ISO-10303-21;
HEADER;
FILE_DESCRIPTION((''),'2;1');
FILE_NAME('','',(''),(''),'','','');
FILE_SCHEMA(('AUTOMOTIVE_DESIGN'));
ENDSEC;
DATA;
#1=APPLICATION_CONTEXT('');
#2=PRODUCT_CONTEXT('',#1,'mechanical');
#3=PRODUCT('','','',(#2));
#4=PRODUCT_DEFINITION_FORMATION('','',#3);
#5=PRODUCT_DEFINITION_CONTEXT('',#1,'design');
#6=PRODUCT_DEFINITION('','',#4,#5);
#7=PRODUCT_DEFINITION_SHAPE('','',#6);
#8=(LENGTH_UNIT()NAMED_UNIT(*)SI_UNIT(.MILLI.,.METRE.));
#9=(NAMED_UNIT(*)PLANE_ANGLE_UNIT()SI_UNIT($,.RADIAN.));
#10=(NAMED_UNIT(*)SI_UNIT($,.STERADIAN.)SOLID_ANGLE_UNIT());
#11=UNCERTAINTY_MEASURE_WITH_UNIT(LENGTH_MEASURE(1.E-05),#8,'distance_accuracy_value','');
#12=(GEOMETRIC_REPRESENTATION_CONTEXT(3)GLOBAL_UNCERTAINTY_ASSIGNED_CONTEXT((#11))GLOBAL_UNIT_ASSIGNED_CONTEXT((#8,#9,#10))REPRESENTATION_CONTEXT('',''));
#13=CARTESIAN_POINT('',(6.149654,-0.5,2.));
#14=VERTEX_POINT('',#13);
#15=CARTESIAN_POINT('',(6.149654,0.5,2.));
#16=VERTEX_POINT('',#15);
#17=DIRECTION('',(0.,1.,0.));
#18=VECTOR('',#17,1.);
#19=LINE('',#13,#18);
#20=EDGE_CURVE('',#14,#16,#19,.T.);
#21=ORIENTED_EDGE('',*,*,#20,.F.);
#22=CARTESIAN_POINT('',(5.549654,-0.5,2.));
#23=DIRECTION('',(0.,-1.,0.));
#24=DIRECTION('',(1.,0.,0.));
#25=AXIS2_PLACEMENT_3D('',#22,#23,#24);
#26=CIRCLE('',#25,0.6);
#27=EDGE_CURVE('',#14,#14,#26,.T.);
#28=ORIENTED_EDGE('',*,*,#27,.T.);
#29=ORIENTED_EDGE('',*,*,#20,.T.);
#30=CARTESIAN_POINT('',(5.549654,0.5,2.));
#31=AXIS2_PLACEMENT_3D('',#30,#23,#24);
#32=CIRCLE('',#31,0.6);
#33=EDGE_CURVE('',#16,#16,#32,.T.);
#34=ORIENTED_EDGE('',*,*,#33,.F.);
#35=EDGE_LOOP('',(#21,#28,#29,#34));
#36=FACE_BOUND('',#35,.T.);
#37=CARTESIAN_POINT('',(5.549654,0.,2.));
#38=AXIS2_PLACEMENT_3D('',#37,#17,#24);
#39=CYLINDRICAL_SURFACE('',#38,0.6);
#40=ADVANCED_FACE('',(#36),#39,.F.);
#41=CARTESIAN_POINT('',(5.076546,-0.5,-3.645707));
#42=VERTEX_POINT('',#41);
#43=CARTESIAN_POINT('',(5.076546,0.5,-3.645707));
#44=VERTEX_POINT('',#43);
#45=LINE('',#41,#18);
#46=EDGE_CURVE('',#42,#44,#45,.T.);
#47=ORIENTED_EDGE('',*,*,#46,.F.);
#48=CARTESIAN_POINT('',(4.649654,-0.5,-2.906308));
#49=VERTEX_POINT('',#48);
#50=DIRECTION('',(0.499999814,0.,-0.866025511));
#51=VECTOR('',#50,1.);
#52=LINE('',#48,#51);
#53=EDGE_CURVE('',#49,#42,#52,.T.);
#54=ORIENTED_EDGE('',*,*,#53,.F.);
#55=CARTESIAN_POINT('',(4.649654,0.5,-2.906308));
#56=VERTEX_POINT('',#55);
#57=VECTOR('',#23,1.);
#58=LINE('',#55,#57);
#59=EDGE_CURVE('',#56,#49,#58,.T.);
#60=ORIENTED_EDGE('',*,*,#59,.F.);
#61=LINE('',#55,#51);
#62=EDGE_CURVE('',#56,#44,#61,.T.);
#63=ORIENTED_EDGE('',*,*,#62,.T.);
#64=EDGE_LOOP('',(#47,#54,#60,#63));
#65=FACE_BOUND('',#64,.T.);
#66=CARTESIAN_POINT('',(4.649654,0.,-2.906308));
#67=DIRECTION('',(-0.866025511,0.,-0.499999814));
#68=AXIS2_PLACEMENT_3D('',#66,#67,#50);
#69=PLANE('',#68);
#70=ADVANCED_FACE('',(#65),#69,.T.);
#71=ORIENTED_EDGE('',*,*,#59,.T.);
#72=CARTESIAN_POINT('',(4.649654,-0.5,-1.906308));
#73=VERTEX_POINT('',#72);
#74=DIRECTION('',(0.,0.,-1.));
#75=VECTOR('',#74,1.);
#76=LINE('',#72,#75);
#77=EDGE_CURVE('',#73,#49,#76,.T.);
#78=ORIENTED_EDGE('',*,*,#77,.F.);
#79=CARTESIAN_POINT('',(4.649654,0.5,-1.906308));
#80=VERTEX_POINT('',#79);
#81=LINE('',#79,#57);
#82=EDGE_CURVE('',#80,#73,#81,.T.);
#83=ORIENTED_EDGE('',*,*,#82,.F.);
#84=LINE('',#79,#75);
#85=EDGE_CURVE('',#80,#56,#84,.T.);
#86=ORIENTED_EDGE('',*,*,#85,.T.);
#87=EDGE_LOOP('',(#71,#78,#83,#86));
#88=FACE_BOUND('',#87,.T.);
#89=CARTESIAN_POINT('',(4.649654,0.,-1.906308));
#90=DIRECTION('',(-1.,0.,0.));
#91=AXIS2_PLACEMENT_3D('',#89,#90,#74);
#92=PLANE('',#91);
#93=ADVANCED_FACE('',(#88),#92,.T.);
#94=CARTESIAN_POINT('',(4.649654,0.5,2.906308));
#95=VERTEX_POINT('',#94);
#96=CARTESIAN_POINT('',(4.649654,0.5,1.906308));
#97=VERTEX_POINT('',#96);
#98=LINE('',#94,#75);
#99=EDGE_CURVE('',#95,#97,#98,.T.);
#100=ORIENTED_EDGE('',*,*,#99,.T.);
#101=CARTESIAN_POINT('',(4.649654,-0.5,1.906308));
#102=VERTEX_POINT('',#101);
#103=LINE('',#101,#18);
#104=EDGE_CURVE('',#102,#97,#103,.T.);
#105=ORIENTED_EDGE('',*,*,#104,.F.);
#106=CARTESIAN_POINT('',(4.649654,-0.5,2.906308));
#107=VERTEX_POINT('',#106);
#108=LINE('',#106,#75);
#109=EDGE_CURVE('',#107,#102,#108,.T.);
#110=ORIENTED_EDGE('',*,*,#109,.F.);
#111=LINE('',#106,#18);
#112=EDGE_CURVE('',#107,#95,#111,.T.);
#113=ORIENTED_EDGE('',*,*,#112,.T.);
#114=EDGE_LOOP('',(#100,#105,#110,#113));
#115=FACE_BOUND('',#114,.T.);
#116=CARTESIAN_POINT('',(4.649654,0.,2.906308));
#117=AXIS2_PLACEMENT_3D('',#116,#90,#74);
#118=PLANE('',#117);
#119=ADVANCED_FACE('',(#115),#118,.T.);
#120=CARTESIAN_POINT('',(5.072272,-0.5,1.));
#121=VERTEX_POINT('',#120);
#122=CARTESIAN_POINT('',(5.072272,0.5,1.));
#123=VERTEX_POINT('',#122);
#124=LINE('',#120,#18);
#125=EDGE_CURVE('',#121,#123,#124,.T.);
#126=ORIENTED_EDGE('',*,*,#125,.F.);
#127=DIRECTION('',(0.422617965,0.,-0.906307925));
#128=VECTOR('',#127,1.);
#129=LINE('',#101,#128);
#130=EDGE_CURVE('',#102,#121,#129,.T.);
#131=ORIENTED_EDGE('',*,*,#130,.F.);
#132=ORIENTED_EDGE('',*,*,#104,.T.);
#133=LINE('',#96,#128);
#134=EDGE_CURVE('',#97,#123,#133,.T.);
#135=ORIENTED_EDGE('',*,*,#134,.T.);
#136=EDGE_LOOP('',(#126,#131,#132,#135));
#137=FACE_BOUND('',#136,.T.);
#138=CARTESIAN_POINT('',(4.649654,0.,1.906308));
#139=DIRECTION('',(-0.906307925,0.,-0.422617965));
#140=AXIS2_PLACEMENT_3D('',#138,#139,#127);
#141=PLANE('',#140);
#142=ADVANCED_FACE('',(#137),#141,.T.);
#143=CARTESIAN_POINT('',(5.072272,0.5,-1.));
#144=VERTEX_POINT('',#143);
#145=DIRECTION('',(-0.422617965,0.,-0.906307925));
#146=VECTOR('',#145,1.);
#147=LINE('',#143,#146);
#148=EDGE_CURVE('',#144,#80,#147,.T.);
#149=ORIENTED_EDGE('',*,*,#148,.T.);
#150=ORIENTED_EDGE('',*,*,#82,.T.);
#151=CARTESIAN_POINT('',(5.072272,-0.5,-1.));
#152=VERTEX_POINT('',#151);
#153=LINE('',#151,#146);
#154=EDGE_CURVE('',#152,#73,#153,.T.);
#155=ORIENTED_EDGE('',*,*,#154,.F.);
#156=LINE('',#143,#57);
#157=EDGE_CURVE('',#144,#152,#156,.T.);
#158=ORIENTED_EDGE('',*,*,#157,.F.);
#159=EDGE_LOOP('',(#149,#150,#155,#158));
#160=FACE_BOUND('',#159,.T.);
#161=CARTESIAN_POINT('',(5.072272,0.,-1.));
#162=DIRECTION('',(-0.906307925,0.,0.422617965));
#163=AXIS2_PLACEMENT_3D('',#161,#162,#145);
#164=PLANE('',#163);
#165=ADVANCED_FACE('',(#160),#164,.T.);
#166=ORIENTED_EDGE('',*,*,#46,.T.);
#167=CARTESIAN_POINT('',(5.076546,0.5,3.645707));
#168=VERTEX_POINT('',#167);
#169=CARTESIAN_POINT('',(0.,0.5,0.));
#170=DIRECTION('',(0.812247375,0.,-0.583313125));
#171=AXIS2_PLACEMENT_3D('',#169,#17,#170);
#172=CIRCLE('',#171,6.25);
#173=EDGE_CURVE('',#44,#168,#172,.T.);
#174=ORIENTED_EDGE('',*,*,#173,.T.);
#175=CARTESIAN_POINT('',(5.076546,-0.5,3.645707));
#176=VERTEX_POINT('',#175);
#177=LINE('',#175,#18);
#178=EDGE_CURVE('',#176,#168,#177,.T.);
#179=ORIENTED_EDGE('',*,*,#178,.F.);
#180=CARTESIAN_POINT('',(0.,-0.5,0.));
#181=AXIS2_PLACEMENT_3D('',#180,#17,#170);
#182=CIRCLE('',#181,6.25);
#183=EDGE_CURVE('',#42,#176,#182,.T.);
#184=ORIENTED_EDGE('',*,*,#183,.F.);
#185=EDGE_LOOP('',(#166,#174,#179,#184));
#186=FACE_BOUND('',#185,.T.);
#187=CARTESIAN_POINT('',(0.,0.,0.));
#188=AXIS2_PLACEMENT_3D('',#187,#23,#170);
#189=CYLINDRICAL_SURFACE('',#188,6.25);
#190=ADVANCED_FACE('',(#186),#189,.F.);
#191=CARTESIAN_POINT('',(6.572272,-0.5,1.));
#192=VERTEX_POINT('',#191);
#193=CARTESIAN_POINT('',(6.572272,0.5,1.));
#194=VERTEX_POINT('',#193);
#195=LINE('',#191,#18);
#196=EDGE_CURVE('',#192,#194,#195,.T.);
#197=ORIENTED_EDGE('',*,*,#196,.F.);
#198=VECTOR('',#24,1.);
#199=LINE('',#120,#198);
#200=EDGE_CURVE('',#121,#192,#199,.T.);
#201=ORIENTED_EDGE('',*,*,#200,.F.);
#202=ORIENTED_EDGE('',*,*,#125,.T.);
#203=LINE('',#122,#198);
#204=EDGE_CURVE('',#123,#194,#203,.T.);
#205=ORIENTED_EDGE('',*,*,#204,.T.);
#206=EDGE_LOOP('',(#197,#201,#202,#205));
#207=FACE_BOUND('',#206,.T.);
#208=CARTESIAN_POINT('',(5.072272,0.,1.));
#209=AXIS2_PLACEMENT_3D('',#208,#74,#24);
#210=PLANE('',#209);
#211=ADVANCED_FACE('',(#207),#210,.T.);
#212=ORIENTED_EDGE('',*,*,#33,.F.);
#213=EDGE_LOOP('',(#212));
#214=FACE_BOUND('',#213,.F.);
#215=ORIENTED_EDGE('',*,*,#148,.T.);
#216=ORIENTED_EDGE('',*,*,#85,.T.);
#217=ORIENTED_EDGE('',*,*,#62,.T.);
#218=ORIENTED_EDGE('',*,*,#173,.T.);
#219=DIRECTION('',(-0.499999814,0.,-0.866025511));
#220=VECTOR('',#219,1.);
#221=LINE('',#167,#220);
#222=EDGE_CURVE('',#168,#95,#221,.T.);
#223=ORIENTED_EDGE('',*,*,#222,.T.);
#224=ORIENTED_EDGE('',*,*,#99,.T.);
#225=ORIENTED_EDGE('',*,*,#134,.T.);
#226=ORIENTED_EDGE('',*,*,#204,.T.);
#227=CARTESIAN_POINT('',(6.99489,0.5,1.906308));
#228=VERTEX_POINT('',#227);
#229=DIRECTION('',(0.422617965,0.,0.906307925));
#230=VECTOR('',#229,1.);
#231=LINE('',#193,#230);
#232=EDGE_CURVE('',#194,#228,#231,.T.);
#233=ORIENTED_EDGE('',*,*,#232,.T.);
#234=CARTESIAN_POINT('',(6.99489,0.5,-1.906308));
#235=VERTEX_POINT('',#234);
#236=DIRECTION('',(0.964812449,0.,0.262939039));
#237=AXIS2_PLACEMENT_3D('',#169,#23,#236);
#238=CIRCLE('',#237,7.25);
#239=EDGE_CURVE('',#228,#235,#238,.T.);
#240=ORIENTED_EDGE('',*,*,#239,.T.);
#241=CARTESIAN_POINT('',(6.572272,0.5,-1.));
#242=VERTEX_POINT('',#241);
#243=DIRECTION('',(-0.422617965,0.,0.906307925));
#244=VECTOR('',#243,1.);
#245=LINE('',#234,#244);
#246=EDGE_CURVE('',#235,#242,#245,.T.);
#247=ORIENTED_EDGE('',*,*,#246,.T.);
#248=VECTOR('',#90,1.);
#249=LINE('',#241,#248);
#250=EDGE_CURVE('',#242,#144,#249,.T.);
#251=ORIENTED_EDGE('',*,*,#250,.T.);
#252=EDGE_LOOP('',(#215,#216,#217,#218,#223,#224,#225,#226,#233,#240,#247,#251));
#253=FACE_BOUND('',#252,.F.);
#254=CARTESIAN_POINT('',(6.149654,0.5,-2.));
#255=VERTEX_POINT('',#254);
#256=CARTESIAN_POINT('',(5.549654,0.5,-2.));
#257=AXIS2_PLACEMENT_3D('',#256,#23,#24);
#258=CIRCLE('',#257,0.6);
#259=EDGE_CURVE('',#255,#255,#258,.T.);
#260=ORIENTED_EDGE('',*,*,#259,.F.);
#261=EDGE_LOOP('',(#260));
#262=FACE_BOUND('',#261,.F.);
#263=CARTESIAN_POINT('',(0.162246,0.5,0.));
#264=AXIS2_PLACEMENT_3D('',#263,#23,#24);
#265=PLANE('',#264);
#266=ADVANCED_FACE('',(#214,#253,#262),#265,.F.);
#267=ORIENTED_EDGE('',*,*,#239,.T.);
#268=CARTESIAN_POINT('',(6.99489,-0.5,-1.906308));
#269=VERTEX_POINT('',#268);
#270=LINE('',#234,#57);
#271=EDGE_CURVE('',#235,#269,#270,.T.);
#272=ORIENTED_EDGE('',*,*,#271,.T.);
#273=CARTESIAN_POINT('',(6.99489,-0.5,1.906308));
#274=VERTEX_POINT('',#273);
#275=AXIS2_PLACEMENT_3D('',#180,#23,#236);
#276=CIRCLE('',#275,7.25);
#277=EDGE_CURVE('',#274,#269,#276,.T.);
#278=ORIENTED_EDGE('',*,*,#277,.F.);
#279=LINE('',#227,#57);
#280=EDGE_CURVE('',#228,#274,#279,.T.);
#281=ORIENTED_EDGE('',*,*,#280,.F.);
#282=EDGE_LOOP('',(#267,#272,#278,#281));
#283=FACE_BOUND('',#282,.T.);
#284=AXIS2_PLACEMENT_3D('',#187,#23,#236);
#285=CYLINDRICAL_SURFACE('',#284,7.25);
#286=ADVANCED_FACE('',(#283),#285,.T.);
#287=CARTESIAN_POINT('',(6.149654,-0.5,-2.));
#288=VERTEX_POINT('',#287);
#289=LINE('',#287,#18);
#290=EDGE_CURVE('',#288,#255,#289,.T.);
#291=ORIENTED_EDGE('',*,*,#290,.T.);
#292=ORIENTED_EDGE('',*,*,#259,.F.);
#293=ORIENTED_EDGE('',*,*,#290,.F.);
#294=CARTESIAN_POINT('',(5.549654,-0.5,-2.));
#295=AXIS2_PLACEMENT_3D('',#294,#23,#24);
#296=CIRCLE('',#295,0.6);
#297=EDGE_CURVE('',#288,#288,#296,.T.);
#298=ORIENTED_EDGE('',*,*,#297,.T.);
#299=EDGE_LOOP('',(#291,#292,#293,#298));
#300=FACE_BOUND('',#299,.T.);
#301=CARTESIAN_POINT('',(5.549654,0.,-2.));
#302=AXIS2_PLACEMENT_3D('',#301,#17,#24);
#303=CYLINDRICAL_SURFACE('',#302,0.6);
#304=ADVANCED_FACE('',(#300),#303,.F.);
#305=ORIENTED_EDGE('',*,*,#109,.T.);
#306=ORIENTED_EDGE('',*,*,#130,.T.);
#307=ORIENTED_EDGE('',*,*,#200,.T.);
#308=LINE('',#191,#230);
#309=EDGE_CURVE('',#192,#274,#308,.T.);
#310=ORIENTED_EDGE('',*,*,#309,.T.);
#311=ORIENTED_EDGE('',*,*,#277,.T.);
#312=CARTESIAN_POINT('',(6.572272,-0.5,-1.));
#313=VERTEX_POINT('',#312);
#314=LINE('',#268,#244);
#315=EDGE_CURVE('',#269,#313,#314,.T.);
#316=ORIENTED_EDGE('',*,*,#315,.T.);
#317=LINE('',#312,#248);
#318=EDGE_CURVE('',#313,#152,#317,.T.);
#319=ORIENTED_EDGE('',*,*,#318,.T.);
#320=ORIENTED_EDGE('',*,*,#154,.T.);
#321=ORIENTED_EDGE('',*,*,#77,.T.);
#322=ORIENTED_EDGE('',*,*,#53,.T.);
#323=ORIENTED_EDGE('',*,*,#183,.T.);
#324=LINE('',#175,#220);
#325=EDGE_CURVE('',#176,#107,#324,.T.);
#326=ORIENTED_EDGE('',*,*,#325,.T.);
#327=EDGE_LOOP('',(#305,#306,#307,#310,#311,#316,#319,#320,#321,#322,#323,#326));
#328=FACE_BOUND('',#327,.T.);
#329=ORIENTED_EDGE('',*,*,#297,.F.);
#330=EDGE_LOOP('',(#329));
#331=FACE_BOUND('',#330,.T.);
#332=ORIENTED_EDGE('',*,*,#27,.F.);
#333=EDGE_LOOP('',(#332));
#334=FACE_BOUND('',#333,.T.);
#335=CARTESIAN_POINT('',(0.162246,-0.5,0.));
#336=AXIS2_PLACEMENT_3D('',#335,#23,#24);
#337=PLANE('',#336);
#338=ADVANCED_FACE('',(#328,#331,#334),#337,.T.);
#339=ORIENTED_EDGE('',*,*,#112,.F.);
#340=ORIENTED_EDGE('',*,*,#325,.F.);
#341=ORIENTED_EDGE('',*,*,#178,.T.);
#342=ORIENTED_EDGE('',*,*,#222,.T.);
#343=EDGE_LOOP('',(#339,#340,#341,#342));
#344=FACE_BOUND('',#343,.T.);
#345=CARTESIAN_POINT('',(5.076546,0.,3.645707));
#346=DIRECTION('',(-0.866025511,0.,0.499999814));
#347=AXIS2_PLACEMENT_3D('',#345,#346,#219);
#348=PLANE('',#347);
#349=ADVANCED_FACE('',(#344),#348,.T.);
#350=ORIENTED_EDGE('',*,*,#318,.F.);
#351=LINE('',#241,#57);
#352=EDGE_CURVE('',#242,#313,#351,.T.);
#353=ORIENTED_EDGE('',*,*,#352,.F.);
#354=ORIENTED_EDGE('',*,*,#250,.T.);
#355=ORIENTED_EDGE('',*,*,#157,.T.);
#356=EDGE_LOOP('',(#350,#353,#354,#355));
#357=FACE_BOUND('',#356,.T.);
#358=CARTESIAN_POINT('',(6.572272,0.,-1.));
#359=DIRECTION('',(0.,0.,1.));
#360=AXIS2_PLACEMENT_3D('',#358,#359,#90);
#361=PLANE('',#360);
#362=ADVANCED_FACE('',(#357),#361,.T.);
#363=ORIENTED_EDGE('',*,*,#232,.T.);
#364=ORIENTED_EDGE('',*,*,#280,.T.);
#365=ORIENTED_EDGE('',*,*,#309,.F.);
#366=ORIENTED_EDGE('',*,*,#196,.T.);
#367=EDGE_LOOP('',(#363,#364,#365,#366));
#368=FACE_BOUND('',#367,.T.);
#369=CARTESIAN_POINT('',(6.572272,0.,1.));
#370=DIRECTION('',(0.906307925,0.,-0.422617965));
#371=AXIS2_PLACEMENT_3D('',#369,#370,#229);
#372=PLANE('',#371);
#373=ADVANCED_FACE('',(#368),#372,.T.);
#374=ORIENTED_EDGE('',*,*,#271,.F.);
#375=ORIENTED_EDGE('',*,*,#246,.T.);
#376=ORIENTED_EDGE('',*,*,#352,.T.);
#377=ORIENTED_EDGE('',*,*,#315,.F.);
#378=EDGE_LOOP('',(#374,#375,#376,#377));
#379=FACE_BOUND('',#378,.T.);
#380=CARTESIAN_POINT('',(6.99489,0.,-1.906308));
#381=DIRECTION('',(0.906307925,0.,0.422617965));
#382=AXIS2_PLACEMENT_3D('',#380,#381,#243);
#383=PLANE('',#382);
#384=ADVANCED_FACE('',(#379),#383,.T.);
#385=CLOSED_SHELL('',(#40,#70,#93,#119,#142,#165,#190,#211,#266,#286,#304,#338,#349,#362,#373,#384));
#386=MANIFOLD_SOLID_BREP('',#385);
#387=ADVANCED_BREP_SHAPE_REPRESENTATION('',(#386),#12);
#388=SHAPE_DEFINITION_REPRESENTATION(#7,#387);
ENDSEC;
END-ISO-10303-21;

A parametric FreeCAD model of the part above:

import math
import FreeCAD as App
import Part
import Sketcher

V = App.Vector
Q = App.Units.Quantity

doc = App.newDocument("Part")
body = doc.addObject("PartDesign::Body", "Body")

sketch1 = body.newObject("Sketcher::SketchObject", "Sketch")
sketch1.AttachmentSupport = (doc.getObject("XZ_Plane"), [""])
sketch1.MapMode = "FlatFace"
sketch1.addGeometry([
    Part.LineSegment(V(6.6, 1, 0), V(7, 1.9, 0)),
    Part.ArcOfCircle(Part.Circle(V(0, 0, 0), V(0, 0, 1), 7.2), math.radians(15), math.radians(345)),
    Part.LineSegment(V(7, -1.9, 0), V(6.6, -1, 0)),
    Part.LineSegment(V(6.6, -1, 0), V(5.1, -1, 0)),
    Part.LineSegment(V(5.1, -1, 0), V(4.6, -1.9, 0)),
    Part.LineSegment(V(4.6, -1.9, 0), V(4.6, -2.9, 0)),
    Part.LineSegment(V(4.6, -2.9, 0), V(5.1, -3.6, 0)),
    Part.ArcOfCircle(Part.Circle(V(0, 0, 0), V(0, 0, 1), 6.2), math.radians(36), math.radians(324)),
    Part.LineSegment(V(5.1, 3.6, 0), V(4.6, 2.9, 0)),
    Part.LineSegment(V(4.6, 2.9, 0), V(4.6, 1.9, 0)),
    Part.LineSegment(V(4.6, 1.9, 0), V(5.1, 1, 0)),
    Part.LineSegment(V(5.1, 1, 0), V(6.6, 1, 0)),
    Part.Circle(V(5.5, -2, 0), V(0, 0, 1), 0.6),
    Part.Circle(V(5.5, 2, 0), V(0, 0, 1), 0.6),
], False)
sketch1.addConstraint([
    Sketcher.Constraint("Coincident", 0, 2, 1, 1),
    Sketcher.Constraint("Coincident", 1, 2, 2, 1),
    Sketcher.Constraint("Coincident", 2, 2, 3, 1),
    Sketcher.Constraint("Coincident", 3, 2, 4, 1),
    Sketcher.Constraint("Coincident", 4, 2, 5, 1),
    Sketcher.Constraint("Coincident", 5, 2, 6, 1),
    Sketcher.Constraint("Coincident", 6, 2, 7, 2),
    Sketcher.Constraint("Coincident", 7, 1, 8, 1),
    Sketcher.Constraint("Coincident", 8, 2, 9, 1),
    Sketcher.Constraint("Coincident", 9, 2, 10, 1),
    Sketcher.Constraint("Coincident", 10, 2, 11, 1),
    Sketcher.Constraint("Coincident", 11, 2, 0, 1),
    Sketcher.Constraint("Horizontal", 3),
    Sketcher.Constraint("Vertical", 5),
    Sketcher.Constraint("Vertical", 9),
    Sketcher.Constraint("Horizontal", 11),
    Sketcher.Constraint("Coincident", 1, 3, -1, 1),
    Sketcher.Constraint("Coincident", 7, 3, -1, 1),
    Sketcher.Constraint("Equal", 12, 13),
    Sketcher.Constraint("Symmetric", 12, 3, 13, 3, -1),
    Sketcher.Constraint("Symmetric", 5, 2, 8, 2, -1),
    Sketcher.Constraint("Symmetric", 3, 2, 10, 2, -1),
    Sketcher.Constraint("Parallel", 0, 4),
    Sketcher.Constraint("Parallel", 2, 10),
    Sketcher.Constraint("Horizontal", 1, 2, 4, 2),
    Sketcher.Constraint("Horizontal", 0, 2, 9, 2),
    Sketcher.Constraint("Vertical", 0, 2, 1, 2),
    Sketcher.Constraint("Vertical", 6, 2, 7, 1),
    Sketcher.Constraint("Diameter", 12, Q("1.2 mm")),
    Sketcher.Constraint("DistanceY", 5, 2, 5, 1, Q("1 mm")),
    Sketcher.Constraint("Angle", 0, Q("65.000019 deg")),
    Sketcher.Constraint("Angle", 6, Q("-60.000012 deg")),
    Sketcher.Constraint("Radius", 1, Q("7.25 mm")),
    Sketcher.Constraint("Radius", 7, Q("6.25 mm")),
    Sketcher.Constraint("Distance", 0, Q("1 mm")),
    Sketcher.Constraint("DistanceX", 3, 2, 3, 1, Q("1.5 mm")),
    Sketcher.Constraint("DistanceY", 12, 3, -1, 1, Q("2 mm")),
    Sketcher.Constraint("DistanceY", 2, 2, -1, 1, Q("1 mm")),
    Sketcher.Constraint("DistanceX", 4, 2, 12, 3, Q("0.9 mm")),
])
pad1 = body.newObject("PartDesign::Pad", "Pad")
pad1.Profile = sketch1
pad1.Length = 1
pad1.Midplane = True

doc.recompute()
